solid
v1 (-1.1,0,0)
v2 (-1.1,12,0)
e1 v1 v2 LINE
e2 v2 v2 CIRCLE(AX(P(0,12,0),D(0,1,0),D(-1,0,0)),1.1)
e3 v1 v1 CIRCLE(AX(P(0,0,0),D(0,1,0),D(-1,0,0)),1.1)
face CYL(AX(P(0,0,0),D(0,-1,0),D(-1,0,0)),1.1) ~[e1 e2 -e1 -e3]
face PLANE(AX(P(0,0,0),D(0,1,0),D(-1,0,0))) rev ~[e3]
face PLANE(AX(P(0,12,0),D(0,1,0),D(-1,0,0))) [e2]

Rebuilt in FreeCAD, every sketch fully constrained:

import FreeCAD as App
import Part
import Sketcher

doc = App.newDocument("Part")
params = doc.addObject("Spreadsheet::Sheet", "Params")
for row, (alias, value) in enumerate([
    ("sketch1_diameter", "2.2 mm"),
    ("pad1_length", "12 mm"),
], start=1):
    params.set(f"A{row}", alias)
    params.set(f"B{row}", "=" + value)
    params.setAlias(f"B{row}", alias)

body = doc.addObject("PartDesign::Body", "Body")

sketch1 = doc.addObject("Sketcher::SketchObject", "Sketch")
body.addObject(sketch1)
sketch1.AttachmentSupport = (doc.XZ_Plane, [""])
sketch1.MapMode = "FlatFace"
sketch1.addGeometry(Part.Circle(App.Vector(0, 0, 0), App.Vector(0, 0, 1), 1.1), False)
sketch1.addConstraint(Sketcher.Constraint("Coincident", 0, 3, -1, 1))
sketch1.addConstraint(Sketcher.Constraint("Diameter", 0, 2.2))
sketch1.setExpression("Constraints[1]", "Params.sketch1_diameter")
pad1 = doc.addObject("PartDesign::Pad", "Pad")
body.addObject(pad1)
pad1.Profile = sketch1
pad1.setExpression("Length", "Params.pad1_length")
pad1.Reversed = True

doc.recompute()
